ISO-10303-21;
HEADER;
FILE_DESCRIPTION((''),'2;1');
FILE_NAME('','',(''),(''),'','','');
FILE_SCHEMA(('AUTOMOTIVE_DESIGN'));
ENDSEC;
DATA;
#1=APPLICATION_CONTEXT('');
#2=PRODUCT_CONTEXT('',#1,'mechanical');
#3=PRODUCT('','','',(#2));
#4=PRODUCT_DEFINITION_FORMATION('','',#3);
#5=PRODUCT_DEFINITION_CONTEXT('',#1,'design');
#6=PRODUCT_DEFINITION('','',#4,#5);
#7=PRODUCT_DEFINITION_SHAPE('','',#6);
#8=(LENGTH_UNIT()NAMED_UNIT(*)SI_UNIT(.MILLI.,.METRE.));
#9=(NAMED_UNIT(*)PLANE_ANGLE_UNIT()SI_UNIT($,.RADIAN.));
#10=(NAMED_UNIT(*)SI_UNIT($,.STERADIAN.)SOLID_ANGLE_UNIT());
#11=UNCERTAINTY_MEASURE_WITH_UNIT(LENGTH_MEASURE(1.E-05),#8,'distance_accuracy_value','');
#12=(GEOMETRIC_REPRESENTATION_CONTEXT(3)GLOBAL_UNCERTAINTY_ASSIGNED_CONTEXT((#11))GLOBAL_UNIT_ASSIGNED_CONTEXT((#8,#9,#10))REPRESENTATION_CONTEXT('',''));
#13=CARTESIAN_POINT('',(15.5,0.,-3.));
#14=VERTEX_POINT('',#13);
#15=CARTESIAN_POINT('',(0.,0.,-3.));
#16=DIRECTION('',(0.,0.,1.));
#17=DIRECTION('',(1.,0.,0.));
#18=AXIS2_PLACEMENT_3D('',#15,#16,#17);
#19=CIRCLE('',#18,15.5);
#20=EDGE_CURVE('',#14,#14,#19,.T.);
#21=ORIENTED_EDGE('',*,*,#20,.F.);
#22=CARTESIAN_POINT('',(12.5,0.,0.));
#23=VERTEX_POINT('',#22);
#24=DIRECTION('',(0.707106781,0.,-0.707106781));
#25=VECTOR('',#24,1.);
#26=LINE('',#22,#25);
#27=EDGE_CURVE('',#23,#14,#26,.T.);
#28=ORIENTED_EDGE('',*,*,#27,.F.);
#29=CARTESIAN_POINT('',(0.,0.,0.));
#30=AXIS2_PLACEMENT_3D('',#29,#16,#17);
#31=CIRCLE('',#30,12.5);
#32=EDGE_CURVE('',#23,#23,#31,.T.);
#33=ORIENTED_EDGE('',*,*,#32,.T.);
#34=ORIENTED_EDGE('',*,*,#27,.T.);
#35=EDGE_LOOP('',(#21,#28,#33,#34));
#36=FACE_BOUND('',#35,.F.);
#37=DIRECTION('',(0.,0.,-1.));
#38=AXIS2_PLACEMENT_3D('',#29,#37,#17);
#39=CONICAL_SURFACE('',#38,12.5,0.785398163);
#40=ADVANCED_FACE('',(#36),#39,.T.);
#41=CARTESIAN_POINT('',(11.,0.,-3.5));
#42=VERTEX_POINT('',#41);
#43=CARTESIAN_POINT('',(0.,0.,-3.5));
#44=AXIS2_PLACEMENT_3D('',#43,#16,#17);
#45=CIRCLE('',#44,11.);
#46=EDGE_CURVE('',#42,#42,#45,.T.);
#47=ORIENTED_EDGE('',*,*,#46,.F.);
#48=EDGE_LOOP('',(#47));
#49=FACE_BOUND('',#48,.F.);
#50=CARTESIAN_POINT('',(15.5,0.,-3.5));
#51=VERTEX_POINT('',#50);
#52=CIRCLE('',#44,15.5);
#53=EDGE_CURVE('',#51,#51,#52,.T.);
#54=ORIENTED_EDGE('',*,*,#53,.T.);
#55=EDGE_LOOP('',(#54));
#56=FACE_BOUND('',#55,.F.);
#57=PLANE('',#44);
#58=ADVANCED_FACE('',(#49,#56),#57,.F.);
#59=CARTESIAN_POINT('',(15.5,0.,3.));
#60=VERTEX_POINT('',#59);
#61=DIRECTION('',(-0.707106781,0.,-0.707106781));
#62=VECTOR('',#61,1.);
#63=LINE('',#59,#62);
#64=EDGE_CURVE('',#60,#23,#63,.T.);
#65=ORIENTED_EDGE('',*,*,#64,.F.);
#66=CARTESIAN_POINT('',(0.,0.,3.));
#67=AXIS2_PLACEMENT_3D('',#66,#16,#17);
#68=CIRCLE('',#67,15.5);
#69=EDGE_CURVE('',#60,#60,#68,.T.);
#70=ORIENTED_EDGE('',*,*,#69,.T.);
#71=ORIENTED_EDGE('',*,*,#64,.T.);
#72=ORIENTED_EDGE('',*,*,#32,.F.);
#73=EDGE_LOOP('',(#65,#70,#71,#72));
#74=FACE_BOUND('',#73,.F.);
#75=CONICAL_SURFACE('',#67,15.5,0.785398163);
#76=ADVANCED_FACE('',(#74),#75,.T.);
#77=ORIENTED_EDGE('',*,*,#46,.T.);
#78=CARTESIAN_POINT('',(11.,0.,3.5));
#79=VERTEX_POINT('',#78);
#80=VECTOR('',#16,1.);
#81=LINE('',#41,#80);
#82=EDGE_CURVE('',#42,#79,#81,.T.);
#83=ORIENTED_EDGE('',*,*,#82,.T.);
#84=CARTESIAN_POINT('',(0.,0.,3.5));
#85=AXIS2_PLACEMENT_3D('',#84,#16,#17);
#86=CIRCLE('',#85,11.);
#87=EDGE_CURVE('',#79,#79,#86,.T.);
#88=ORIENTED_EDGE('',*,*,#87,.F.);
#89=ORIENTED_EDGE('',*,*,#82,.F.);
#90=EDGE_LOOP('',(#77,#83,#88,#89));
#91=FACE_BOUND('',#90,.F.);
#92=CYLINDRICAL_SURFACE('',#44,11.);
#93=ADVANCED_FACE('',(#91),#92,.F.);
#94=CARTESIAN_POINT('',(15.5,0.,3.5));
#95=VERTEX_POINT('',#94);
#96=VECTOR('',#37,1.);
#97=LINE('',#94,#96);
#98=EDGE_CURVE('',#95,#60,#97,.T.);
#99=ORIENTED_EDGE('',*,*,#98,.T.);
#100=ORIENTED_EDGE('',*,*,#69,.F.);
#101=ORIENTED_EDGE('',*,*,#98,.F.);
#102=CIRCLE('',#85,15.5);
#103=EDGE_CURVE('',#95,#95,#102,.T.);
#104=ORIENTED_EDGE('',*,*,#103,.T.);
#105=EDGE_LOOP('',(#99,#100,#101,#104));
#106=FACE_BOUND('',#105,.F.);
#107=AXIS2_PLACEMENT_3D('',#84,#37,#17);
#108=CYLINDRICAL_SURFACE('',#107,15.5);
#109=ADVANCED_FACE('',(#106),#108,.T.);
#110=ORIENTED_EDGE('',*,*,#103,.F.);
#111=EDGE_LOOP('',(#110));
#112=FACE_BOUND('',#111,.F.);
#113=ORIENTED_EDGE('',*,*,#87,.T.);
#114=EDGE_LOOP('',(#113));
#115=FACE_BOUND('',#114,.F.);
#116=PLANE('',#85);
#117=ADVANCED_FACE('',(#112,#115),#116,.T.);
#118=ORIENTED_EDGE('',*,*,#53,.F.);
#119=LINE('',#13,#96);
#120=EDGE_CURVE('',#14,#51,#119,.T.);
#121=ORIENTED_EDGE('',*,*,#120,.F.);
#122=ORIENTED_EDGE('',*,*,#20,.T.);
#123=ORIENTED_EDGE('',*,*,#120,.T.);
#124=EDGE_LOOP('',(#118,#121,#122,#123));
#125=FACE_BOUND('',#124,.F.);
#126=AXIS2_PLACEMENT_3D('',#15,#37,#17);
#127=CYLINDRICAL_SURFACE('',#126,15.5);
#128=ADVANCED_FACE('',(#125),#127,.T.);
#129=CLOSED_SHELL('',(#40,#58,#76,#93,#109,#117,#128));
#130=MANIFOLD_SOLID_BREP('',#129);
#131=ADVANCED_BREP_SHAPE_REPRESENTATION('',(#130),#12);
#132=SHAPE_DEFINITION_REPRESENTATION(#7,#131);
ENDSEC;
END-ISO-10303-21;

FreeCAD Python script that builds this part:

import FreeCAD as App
import Part
import Sketcher

V = App.Vector


def add_polygon(sketch, points):
    """Adds a closed chain of lines whose ends are joined by coincident constraints."""
    first, n = sketch.GeometryCount, len(points)
    for a, b in zip(points, points[1:] + points[:1]):
        sketch.addGeometry(Part.LineSegment(App.Vector(*a, 0), App.Vector(*b, 0)), False)
    for i in range(n):
        sketch.addConstraint(Sketcher.Constraint("Coincident", first + i, 2, first + (i + 1) % n, 1))

doc = App.newDocument("Part")
params = doc.addObject("Spreadsheet::Sheet", "Params")
for row, (alias, value) in enumerate([
    ("sketch1_height", "7 mm"),
    ("sketch1_width", "4.5 mm"),
    ("sketch1_height2", "0.5 mm"),
    ("revolution_angle", "360 deg"),
], start=1):
    params.set(f"A{row}", alias)
    params.set(f"B{row}", "=" + value)
    params.setAlias(f"B{row}", alias)

body = doc.addObject("PartDesign::Body", "Body")

sketch1 = body.newObject("Sketcher::SketchObject", "Sketch")
sketch1.AttachmentSupport = (doc.getObject("XZ_Plane"), [""])
sketch1.MapMode = "FlatFace"
add_polygon(sketch1, [(15.5, 3.5), (11, 3.5), (11, -3.5), (15.5, -3.5), (15.5, -3), (12.5, 0), (15.5, 3)])
sketch1.addConstraint(Sketcher.Constraint("Horizontal", 0))
sketch1.addConstraint(Sketcher.Constraint("Vertical", 1))
sketch1.addConstraint(Sketcher.Constraint("Horizontal", 2))
sketch1.addConstraint(Sketcher.Constraint("Vertical", 3))
sketch1.addConstraint(Sketcher.Constraint("Vertical", 6))
sketch1.addConstraint(Sketcher.Constraint("Symmetric", 3, 2, 5, 2, -1))
sketch1.addConstraint(Sketcher.Constraint("PointOnObject", 4, 2, -1))
sketch1.addConstraint(Sketcher.Constraint("Perpendicular", 4, 5))
sketch1.addConstraint(Sketcher.Constraint("Equal", 3, 6))
sketch1.addConstraint(Sketcher.Constraint("DistanceY", 1, 2, 1, 1, 7.0))
sketch1.addConstraint(Sketcher.Constraint("DistanceX", 0, 2, 0, 1, 4.5))
sketch1.addConstraint(Sketcher.Constraint("DistanceY", 3, 1, 3, 2, 0.5))
sketch1.addConstraint(Sketcher.Constraint("DistanceX", -1, 1, 0, 2, 11.0))
sketch1.setExpression("Constraints[16]", "Params.sketch1_height")
sketch1.setExpression("Constraints[17]", "Params.sketch1_width")
sketch1.setExpression("Constraints[18]", "Params.sketch1_height2")
revolution = body.newObject("PartDesign::Revolution", "Revolution")
revolution.Profile = sketch1
revolution.ReferenceAxis = (sketch1, ["V_Axis"])
revolution.setExpression("Angle", "Params.revolution_angle")

doc.recompute()
